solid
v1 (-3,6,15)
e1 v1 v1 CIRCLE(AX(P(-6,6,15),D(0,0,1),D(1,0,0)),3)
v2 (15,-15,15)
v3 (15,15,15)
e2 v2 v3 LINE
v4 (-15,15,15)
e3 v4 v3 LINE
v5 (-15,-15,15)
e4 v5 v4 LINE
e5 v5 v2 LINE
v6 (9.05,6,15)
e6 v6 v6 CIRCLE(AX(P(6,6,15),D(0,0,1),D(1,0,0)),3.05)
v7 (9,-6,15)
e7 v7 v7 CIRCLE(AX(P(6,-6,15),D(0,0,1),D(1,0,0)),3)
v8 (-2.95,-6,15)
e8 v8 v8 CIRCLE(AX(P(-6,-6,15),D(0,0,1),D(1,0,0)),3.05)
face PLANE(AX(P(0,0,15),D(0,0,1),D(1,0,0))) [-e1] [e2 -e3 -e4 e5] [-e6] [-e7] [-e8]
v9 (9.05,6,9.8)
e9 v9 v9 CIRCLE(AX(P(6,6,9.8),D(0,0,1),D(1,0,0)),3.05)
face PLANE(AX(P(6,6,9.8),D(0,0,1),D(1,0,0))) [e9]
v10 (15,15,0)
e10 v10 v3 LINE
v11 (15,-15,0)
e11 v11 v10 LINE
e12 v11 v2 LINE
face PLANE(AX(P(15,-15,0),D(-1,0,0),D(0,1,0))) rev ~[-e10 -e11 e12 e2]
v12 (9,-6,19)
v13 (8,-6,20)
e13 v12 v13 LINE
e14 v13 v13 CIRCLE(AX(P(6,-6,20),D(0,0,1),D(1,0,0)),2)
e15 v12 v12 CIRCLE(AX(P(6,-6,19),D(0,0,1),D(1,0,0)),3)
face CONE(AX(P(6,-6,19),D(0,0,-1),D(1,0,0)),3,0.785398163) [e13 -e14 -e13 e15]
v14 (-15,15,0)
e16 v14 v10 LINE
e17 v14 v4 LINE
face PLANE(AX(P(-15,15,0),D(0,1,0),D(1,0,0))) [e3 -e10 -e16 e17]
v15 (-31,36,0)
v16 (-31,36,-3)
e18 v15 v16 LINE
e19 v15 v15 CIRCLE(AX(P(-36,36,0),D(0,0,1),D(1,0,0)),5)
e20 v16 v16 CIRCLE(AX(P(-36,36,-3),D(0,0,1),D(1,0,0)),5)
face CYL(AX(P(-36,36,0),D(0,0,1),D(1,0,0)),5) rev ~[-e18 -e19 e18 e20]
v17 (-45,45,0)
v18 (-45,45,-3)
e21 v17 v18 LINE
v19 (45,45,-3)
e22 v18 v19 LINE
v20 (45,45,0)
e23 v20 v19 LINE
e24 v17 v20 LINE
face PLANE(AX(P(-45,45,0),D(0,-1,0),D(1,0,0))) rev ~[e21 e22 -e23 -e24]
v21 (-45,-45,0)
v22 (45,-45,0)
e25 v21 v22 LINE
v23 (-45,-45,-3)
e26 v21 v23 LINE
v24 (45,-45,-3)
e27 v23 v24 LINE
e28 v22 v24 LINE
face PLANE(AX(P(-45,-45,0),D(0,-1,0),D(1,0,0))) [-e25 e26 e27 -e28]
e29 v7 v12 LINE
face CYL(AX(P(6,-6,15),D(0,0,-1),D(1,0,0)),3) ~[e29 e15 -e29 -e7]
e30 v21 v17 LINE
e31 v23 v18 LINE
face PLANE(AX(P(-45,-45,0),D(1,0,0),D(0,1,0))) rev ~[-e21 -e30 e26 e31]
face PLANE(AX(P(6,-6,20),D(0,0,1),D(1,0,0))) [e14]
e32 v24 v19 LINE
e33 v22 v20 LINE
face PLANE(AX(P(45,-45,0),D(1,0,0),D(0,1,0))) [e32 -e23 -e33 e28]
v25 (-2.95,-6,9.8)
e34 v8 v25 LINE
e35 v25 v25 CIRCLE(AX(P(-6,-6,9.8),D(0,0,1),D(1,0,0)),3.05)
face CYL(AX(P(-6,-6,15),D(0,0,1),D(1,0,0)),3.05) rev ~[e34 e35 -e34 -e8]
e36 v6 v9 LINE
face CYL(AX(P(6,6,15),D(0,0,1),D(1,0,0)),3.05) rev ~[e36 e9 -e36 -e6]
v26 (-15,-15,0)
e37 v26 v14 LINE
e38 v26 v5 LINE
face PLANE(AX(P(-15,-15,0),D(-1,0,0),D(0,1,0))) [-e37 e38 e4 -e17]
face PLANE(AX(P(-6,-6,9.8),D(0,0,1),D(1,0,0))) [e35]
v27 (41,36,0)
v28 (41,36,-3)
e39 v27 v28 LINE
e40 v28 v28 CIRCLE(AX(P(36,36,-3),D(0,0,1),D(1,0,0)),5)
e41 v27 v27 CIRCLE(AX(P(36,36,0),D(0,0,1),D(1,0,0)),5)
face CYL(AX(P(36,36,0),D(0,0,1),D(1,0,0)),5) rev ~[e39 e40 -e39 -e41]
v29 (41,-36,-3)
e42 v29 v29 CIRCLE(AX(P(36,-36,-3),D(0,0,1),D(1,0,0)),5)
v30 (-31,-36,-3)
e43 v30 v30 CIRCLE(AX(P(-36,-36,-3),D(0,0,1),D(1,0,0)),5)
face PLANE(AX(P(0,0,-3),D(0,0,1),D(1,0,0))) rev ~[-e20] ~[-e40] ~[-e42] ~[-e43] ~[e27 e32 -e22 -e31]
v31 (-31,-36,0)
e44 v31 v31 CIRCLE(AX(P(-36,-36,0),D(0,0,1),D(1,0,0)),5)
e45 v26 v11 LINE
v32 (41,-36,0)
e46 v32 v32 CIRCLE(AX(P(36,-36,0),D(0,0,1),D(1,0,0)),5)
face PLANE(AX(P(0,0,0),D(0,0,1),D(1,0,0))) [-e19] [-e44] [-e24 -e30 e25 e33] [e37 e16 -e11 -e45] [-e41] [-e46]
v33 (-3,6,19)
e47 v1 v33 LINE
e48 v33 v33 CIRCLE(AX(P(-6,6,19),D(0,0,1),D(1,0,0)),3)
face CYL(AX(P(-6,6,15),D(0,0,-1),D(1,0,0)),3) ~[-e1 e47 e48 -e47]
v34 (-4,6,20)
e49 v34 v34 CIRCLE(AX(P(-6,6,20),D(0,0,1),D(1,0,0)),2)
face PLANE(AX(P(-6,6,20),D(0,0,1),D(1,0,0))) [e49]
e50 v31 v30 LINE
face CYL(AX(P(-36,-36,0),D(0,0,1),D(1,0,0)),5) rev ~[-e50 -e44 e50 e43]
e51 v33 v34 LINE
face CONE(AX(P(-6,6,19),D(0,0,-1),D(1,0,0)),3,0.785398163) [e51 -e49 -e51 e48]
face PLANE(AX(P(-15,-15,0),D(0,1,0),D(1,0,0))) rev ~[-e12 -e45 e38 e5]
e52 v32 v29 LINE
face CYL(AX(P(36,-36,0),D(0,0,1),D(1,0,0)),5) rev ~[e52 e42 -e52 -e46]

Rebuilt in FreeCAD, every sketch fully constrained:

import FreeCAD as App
import Part
import Sketcher

V = App.Vector


def edges_at(feature, points):
    """Names of the edges that pass closest to the given points."""
    edges = feature.Shape.Edges
    near = lambda p: min(range(len(edges)), key=lambda i: edges[i].distToShape(Part.Vertex(*p))[0])
    return sorted({f"Edge{near(p) + 1}" for p in points})

doc = App.newDocument("Part")
body = doc.addObject("PartDesign::Body", "Body")

sketch1 = body.newObject("Sketcher::SketchObject", "Sketch")
sketch1.AttachmentSupport = (doc.getObject("XY_Plane"), [""])
sketch1.MapMode = "FlatFace"
sketch1.addGeometry([
    Part.LineSegment(V(-15, 15, 0), V(-15, -15, 0)),
    Part.LineSegment(V(-15, -15, 0), V(15, -15, 0)),
    Part.LineSegment(V(15, -15, 0), V(15, 15, 0)),
    Part.LineSegment(V(15, 15, 0), V(-15, 15, 0)),
], False)
sketch1.addConstraint([
    Sketcher.Constraint("Coincident", 0, 2, 1, 1),
    Sketcher.Constraint("Coincident", 1, 2, 2, 1),
    Sketcher.Constraint("Coincident", 2, 2, 3, 1),
    Sketcher.Constraint("Coincident", 3, 2, 0, 1),
    Sketcher.Constraint("Vertical", 0),
    Sketcher.Constraint("Horizontal", 1),
    Sketcher.Constraint("Vertical", 2),
    Sketcher.Constraint("Horizontal", 3),
    Sketcher.Constraint("Symmetric", 0, 2, 2, 2, -1, 1),
    Sketcher.Constraint("Equal", 3, 0),
    Sketcher.Constraint("DistanceX", 1, 1, 1, 2, 30.0),
])
pad1 = body.newObject("PartDesign::Pad", "Pad")
pad1.Profile = sketch1
pad1.Length = 15

sketch2 = body.newObject("Sketcher::SketchObject", "Sketch001")
sketch2.AttachmentSupport = (doc.getObject("XY_Plane"), [""])
sketch2.MapMode = "FlatFace"
sketch2.addGeometry([
    Part.LineSegment(V(-45, 45, 0), V(-45, -45, 0)),
    Part.LineSegment(V(-45, -45, 0), V(45, -45, 0)),
    Part.LineSegment(V(45, -45, 0), V(45, 45, 0)),
    Part.LineSegment(V(45, 45, 0), V(-45, 45, 0)),
], False)
sketch2.addConstraint([
    Sketcher.Constraint("Coincident", 0, 2, 1, 1),
    Sketcher.Constraint("Coincident", 1, 2, 2, 1),
    Sketcher.Constraint("Coincident", 2, 2, 3, 1),
    Sketcher.Constraint("Coincident", 3, 2, 0, 1),
    Sketcher.Constraint("Vertical", 0),
    Sketcher.Constraint("Horizontal", 1),
    Sketcher.Constraint("Vertical", 2),
    Sketcher.Constraint("Horizontal", 3),
    Sketcher.Constraint("Symmetric", 0, 2, 2, 2, -1, 1),
    Sketcher.Constraint("Equal", 3, 0),
    Sketcher.Constraint("DistanceX", 1, 1, 1, 2, 90.0),
])
pad2 = body.newObject("PartDesign::Pad", "Pad001")
pad2.Profile = sketch2
pad2.Length = 3
pad2.Reversed = True

sketch3 = body.newObject("Sketcher::SketchObject", "Sketch002")
sketch3.AttachmentSupport = (doc.getObject("XY_Plane"), [""])
sketch3.MapMode = "FlatFace"
sketch3.addGeometry([
    Part.Circle(V(-36, 36, 0), V(0, 0, 1), 5),
    Part.Circle(V(36, 36, 0), V(0, 0, 1), 5),
    Part.Circle(V(36, -36, 0), V(0, 0, 1), 5),
    Part.Circle(V(-36, -36, 0), V(0, 0, 1), 5),
], False)
sketch3.addConstraint([
    Sketcher.Constraint("Equal", 0, 1),
    Sketcher.Constraint("Equal", 1, 2),
    Sketcher.Constraint("Equal", 2, 3),
    Sketcher.Constraint("Symmetric", 0, 3, 2, 3, -1, 1),
    Sketcher.Constraint("Symmetric", 1, 3, 3, 3, -1, 1),
    Sketcher.Constraint("Symmetric", 0, 3, 1, 3, -2),
    Sketcher.Constraint("Diameter", 0, 10.0),
    Sketcher.Constraint("DistanceX", 0, 3, -1, 1, 36.0),
    Sketcher.Constraint("DistanceY", -1, 1, 0, 3, 36.0),
])
pocket1 = body.newObject("PartDesign::Pocket", "Pocket")
pocket1.Profile = sketch3
pocket1.Type = "ThroughAll"

sketch4 = body.newObject("Sketcher::SketchObject", "Sketch003")
sketch4.AttachmentSupport = (doc.getObject("XY_Plane"), [""])
sketch4.MapMode = "FlatFace"
sketch4.AttachmentOffset = App.Placement(V(0, 0, 15), App.Rotation())
sketch4.addGeometry([
    Part.Circle(V(-6, 6, 0), V(0, 0, 1), 3),
    Part.Circle(V(6, -6, 0), V(0, 0, 1), 3),
], False)
sketch4.addConstraint([
    Sketcher.Constraint("Equal", 0, 1),
    Sketcher.Constraint("Symmetric", 0, 3, 1, 3, -1, 1),
    Sketcher.Constraint("Diameter", 0, 6.0),
    Sketcher.Constraint("DistanceX", 0, 3, -1, 1, 6.0),
    Sketcher.Constraint("DistanceY", -1, 1, 0, 3, 6.0),
])
pad3 = body.newObject("PartDesign::Pad", "Pad002")
pad3.Profile = sketch4
pad3.Length = 5
doc.recompute()

chamfer = body.newObject("PartDesign::Chamfer", "Chamfer")
chamfer.Base = (pad3, edges_at(pad3, [(-9, 6, 20), (3, -6, 20)]))
chamfer.Size = 1

sketch5 = body.newObject("Sketcher::SketchObject", "Sketch004")
sketch5.AttachmentSupport = (doc.getObject("XY_Plane"), [""])
sketch5.MapMode = "FlatFace"
sketch5.AttachmentOffset = App.Placement(V(0, 0, 15), App.Rotation())
sketch5.addGeometry([
    Part.Circle(V(-6, -6, 0), V(0, 0, 1), 3),
    Part.Circle(V(6, 6, 0), V(0, 0, 1), 3),
], False)
sketch5.addConstraint([
    Sketcher.Constraint("Equal", 0, 1),
    Sketcher.Constraint("Symmetric", 0, 3, 1, 3, -1, 1),
    Sketcher.Constraint("Diameter", 0, 6.1),
    Sketcher.Constraint("DistanceX", 0, 3, -1, 1, 6.0),
    Sketcher.Constraint("DistanceY", 0, 3, -1, 1, 6.0),
])
pocket2 = body.newObject("PartDesign::Pocket", "Pocket001")
pocket2.Profile = sketch5
pocket2.Length = 5.2

doc.recompute()
